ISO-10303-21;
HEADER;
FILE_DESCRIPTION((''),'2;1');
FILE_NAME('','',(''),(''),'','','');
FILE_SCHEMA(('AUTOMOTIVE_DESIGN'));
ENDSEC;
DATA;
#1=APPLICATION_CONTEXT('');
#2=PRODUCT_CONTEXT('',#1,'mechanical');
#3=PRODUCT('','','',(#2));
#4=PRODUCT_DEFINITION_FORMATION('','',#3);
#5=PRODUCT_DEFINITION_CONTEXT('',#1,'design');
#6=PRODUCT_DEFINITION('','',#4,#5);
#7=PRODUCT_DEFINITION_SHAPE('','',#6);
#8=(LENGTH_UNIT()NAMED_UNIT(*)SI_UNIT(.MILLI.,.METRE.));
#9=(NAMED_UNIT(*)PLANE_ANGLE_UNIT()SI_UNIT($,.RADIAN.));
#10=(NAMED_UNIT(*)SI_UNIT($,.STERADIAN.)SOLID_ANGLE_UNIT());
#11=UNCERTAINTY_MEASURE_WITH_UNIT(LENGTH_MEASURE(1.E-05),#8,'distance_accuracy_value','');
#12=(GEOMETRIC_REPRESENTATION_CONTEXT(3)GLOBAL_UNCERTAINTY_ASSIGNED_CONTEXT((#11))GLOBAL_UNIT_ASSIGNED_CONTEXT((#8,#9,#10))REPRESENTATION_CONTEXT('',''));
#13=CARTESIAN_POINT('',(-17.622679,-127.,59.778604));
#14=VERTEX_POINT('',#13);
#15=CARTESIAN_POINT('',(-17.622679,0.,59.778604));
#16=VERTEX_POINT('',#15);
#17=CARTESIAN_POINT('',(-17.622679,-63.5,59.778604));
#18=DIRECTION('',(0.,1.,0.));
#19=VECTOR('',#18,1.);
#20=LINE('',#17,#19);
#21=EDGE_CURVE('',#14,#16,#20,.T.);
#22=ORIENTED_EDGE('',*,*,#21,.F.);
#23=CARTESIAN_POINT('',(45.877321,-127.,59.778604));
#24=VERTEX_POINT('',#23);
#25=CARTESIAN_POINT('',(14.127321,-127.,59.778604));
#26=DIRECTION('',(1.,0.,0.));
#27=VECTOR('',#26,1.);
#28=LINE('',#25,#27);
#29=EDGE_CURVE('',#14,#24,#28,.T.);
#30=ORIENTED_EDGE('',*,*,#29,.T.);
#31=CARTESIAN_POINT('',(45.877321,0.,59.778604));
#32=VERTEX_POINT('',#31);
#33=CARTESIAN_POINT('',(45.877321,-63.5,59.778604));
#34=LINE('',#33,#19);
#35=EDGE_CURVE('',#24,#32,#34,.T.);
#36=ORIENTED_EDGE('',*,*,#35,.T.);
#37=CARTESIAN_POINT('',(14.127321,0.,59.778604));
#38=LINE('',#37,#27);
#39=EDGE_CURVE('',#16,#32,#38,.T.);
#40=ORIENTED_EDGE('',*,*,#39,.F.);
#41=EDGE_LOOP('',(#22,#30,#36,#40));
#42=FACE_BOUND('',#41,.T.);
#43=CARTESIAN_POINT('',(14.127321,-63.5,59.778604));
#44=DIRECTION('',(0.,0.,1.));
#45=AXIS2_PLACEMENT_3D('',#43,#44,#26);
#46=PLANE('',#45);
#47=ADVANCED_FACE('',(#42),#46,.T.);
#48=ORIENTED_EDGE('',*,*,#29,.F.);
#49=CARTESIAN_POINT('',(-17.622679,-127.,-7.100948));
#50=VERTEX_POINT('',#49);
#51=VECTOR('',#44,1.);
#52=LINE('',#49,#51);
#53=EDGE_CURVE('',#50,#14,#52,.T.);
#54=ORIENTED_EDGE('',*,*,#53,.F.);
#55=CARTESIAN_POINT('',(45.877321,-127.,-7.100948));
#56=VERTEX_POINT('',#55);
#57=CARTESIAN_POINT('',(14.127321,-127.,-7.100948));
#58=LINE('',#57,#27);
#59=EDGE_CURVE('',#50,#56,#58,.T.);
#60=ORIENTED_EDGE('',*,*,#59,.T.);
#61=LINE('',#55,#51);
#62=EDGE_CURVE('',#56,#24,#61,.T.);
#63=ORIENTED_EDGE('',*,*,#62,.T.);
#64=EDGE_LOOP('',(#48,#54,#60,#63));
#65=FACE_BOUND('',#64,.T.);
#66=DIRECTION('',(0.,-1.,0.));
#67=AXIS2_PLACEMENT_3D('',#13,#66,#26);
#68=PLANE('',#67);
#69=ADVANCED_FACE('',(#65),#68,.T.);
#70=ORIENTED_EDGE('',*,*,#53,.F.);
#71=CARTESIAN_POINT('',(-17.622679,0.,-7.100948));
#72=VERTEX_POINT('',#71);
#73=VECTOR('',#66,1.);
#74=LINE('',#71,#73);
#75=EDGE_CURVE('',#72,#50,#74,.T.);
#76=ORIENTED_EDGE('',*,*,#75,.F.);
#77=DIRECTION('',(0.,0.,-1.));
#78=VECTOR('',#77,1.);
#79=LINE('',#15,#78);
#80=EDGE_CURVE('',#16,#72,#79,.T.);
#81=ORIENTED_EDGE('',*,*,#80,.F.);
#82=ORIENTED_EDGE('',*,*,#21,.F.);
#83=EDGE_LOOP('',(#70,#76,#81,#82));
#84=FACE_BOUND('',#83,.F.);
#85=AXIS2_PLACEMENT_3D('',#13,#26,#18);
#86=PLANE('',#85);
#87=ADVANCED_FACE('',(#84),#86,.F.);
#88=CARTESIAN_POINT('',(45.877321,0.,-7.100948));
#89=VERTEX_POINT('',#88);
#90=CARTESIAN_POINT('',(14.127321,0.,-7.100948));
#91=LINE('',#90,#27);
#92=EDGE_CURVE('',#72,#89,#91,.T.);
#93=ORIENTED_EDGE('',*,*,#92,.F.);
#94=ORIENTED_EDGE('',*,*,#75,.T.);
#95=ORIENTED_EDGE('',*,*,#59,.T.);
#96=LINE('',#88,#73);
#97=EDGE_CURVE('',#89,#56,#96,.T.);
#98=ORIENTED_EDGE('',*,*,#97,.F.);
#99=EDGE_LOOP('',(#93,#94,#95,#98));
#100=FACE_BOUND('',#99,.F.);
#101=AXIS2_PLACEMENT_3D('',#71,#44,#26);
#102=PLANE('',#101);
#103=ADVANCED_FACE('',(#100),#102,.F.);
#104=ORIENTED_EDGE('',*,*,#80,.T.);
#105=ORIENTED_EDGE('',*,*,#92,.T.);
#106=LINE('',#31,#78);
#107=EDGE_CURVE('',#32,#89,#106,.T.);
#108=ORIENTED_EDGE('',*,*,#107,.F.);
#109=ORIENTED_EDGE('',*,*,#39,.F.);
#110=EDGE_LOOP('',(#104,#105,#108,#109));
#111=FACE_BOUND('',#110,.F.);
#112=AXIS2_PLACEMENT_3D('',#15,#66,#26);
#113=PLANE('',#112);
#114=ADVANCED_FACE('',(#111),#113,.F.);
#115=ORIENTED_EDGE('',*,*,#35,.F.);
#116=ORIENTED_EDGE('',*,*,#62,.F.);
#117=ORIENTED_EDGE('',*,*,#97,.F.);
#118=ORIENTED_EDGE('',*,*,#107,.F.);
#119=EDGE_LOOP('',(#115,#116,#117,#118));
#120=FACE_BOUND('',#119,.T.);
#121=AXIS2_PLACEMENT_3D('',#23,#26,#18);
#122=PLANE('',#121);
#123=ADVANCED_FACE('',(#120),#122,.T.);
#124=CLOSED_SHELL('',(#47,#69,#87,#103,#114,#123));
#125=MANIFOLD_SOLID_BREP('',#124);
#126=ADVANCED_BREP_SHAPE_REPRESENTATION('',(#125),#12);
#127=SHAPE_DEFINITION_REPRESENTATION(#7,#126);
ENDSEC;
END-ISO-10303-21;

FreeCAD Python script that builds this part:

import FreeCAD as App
import Part
import Sketcher

V = App.Vector
Q = App.Units.Quantity

doc = App.newDocument("Part")
body = doc.addObject("PartDesign::Body", "Body")

# Sketch on XZ plane
sketch1 = doc.addObject("Sketcher::SketchObject", "Sketch")
body.addObject(sketch1)
sketch1.AttachmentSupport = (doc.XZ_Plane, [""])
sketch1.MapMode = "FlatFace"
sketch1.addGeometry([
    Part.LineSegment(V(-18, 60, 0), V(-18, -7, 0)),
    Part.LineSegment(V(-18, -7, 0), V(46, -7, 0)),
    Part.LineSegment(V(46, -7, 0), V(46, 60, 0)),
    Part.LineSegment(V(46, 60, 0), V(-18, 60, 0)),
], False)
sketch1.addConstraint([
    Sketcher.Constraint("Coincident", 0, 2, 1, 1),
    Sketcher.Constraint("Coincident", 1, 2, 2, 1),
    Sketcher.Constraint("Coincident", 2, 2, 3, 1),
    Sketcher.Constraint("Coincident", 3, 2, 0, 1),
    Sketcher.Constraint("Vertical", 0),
    Sketcher.Constraint("Horizontal", 1),
    Sketcher.Constraint("Vertical", 2),
    Sketcher.Constraint("Horizontal", 3),
    Sketcher.Constraint("DistanceX", 1, 1, 1, 2, Q("2.5 in")),
    Sketcher.Constraint("DistanceY", 0, 2, 0, 1, Q("66.879551 mm")),
    Sketcher.Constraint("DistanceX", 0, 2, -1, 1, Q("17.622679 mm")),
    Sketcher.Constraint("DistanceY", 0, 2, -1, 1, Q("7.100948 mm")),
])
pad1 = doc.addObject("PartDesign::Pad", "Pad")
body.addObject(pad1)
pad1.Profile = sketch1
pad1.Length = Q("5 in")

# Sketch on XY plane
sketch2 = doc.addObject("Sketcher::SketchObject", "Sketch001")
body.addObject(sketch2)
sketch2.AttachmentSupport = (doc.XY_Plane, [""])
sketch2.MapMode = "FlatFace"
sketch2.AttachmentOffset = App.Placement(V(0, 0, 59.778604), App.Rotation())
sketch2.addGeometry([
    Part.LineSegment(V(-18, 0, 0), V(-18, -127, 0)),
    Part.LineSegment(V(-18, -127, 0), V(46, -127, 0)),
    Part.LineSegment(V(46, -127, 0), V(46, 0, 0)),
    Part.LineSegment(V(46, 0, 0), V(-18, 0, 0)),
], False)
sketch2.addConstraint([
    Sketcher.Constraint("Coincident", 0, 2, 1, 1),
    Sketcher.Constraint("Coincident", 1, 2, 2, 1),
    Sketcher.Constraint("Coincident", 2, 2, 3, 1),
    Sketcher.Constraint("Coincident", 3, 2, 0, 1),
    Sketcher.Constraint("Vertical", 0),
    Sketcher.Constraint("Horizontal", 1),
    Sketcher.Constraint("Vertical", 2),
    Sketcher.Constraint("Horizontal", 3),
    Sketcher.Constraint("PointOnObject", 2, 2, -1),
    Sketcher.Constraint("DistanceY", 0, 2, 0, 1, Q("5 in")),
    Sketcher.Constraint("DistanceX", 1, 1, 1, 2, Q("2.5 in")),
    Sketcher.Constraint("DistanceX", 0, 2, -1, 1, Q("17.622679 mm")),
])
pad2 = doc.addObject("PartDesign::Pad", "Pad001")
body.addObject(pad2)
pad2.Profile = sketch2
pad2.Length = 25
pad2.Reversed = True

doc.recompute()
